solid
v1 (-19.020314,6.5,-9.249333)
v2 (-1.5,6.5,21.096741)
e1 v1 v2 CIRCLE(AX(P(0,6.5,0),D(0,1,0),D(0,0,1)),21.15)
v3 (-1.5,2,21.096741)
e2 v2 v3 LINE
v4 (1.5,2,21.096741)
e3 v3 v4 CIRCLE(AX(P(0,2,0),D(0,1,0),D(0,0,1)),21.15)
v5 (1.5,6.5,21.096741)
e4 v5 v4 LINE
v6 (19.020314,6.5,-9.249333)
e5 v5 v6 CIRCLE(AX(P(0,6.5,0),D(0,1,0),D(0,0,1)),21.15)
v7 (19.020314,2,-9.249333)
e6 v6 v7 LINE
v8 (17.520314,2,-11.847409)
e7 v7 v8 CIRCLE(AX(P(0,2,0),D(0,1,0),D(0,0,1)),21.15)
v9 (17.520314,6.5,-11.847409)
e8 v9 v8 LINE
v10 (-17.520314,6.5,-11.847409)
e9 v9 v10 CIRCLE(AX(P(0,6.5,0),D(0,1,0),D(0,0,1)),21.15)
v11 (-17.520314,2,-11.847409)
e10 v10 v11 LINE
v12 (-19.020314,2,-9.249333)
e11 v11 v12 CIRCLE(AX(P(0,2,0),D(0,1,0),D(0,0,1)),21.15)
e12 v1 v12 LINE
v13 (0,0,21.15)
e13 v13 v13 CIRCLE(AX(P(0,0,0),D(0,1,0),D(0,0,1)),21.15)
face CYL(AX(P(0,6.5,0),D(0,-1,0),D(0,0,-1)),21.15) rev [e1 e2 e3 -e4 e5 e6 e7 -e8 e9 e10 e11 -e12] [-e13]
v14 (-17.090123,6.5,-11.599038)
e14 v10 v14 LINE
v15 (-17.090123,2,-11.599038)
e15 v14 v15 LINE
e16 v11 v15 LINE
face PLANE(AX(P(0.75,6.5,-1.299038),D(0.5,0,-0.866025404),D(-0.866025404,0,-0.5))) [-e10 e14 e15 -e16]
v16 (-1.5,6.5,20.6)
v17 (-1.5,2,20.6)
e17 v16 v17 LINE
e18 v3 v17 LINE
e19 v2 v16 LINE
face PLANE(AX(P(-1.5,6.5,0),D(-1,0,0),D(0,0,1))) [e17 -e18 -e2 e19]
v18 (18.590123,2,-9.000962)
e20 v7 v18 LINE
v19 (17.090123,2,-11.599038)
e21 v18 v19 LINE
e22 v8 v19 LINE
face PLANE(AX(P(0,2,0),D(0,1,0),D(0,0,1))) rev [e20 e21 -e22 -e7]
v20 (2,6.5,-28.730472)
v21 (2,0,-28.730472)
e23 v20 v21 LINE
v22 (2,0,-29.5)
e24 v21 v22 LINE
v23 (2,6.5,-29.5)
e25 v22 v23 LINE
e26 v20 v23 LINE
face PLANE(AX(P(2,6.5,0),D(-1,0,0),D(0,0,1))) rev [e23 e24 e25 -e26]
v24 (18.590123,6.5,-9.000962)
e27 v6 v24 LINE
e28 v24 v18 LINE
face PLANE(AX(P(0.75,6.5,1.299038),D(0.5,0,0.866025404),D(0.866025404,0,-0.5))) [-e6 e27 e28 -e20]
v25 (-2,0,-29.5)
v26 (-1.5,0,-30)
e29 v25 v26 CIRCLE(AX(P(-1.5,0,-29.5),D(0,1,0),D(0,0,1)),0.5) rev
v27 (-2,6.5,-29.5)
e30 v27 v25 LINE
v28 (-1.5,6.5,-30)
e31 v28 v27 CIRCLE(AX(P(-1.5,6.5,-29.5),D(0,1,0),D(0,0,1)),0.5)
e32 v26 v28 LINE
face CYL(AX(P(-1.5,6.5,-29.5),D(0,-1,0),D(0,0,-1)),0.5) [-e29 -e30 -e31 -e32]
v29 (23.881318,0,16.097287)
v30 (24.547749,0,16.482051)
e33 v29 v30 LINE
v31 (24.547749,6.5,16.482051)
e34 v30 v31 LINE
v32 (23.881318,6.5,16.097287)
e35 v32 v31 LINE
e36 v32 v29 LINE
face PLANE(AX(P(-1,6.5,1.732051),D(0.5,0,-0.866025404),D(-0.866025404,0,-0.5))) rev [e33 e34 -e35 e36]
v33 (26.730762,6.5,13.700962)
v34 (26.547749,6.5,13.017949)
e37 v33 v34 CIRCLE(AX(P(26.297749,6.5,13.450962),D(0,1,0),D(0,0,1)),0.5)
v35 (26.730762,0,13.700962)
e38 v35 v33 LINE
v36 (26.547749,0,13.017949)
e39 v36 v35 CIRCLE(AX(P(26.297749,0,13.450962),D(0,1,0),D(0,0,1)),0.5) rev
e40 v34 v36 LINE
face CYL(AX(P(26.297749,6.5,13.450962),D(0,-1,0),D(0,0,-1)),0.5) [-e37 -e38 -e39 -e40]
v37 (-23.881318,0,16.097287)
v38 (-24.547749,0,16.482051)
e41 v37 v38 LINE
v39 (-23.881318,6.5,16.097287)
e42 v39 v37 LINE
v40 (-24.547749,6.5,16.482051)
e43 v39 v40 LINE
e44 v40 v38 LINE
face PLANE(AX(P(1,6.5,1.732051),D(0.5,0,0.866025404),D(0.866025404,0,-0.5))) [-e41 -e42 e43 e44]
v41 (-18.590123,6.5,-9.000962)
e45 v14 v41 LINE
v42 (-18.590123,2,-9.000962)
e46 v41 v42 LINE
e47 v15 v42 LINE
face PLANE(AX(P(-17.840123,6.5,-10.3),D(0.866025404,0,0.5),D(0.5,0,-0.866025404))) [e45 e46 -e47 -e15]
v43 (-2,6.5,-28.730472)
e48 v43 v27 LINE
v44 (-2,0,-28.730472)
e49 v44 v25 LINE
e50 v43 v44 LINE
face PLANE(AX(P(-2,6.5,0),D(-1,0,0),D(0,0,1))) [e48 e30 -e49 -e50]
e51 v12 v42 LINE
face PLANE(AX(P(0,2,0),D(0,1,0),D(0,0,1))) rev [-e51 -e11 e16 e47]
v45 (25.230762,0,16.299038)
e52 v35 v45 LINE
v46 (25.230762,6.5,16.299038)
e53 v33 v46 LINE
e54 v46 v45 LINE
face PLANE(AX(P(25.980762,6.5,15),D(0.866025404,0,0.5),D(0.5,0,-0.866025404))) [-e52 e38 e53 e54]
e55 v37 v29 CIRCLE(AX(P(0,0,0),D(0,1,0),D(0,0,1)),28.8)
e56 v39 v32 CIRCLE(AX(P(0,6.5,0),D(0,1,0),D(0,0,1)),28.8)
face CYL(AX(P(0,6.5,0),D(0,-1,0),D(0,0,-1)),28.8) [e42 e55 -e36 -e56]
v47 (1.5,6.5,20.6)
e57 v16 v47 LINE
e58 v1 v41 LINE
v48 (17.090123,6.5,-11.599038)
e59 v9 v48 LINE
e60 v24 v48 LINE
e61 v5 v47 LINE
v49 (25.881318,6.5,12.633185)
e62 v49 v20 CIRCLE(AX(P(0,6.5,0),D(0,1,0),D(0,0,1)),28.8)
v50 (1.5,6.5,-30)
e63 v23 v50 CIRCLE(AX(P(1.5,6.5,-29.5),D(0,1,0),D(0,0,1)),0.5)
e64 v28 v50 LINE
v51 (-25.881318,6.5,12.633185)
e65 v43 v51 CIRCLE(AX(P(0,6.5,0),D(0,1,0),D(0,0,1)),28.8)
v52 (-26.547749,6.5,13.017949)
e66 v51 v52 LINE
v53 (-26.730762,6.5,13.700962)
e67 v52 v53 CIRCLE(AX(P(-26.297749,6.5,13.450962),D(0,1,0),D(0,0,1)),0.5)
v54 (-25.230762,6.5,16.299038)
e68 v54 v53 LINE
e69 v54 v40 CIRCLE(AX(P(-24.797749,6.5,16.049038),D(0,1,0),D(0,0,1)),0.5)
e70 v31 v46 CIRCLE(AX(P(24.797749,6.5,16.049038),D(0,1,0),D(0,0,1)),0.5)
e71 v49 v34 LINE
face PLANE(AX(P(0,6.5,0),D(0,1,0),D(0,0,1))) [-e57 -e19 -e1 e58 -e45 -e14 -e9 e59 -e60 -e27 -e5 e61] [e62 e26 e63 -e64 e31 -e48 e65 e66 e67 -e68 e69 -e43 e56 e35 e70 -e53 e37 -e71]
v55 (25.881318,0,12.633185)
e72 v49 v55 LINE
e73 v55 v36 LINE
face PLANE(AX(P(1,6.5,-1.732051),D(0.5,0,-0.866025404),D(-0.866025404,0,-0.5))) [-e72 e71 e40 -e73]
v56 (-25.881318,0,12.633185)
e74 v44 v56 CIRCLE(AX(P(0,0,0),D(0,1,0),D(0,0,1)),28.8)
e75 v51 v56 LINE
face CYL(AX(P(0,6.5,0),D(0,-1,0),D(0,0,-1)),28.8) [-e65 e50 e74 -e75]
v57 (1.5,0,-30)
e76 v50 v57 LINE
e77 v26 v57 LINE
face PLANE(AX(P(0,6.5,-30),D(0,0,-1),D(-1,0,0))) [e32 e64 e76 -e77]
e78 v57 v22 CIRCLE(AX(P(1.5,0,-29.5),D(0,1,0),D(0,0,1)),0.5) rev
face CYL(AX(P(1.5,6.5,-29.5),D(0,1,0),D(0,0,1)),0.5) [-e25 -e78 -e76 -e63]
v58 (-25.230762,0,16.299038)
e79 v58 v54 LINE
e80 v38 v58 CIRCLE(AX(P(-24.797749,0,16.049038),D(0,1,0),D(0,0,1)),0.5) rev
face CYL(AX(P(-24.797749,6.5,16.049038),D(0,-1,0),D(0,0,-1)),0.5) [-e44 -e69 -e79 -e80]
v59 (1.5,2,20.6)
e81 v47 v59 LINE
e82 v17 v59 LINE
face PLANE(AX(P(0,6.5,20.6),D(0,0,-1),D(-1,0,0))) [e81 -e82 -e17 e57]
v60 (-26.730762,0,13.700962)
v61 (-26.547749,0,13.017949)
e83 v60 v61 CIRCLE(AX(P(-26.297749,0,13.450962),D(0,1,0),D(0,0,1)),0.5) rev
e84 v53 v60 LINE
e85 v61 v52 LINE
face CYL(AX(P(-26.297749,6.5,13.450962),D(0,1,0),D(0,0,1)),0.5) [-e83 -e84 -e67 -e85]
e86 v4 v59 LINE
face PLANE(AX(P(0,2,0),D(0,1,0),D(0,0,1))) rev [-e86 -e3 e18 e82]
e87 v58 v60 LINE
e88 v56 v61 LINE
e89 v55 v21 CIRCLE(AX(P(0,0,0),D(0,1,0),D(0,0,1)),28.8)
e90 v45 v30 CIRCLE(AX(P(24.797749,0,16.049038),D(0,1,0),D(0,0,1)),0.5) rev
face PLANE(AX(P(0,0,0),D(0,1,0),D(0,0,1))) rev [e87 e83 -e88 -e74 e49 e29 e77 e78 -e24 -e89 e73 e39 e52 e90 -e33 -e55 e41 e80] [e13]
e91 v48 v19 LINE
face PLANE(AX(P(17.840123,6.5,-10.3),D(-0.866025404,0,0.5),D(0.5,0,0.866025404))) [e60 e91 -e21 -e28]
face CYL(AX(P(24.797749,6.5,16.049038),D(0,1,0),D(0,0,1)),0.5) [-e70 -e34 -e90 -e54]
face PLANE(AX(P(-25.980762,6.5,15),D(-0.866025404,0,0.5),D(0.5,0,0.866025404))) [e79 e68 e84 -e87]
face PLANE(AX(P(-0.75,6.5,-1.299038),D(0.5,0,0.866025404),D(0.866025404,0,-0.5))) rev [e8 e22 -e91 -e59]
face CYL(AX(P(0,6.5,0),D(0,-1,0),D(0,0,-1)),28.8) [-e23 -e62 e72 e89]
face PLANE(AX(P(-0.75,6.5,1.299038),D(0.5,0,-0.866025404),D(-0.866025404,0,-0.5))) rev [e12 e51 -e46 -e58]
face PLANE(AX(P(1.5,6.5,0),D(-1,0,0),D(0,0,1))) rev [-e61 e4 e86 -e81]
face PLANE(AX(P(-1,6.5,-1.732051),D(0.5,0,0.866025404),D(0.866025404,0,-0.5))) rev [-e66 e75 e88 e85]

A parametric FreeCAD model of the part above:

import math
import FreeCAD as App
import Part
import Sketcher

V = App.Vector
Q = App.Units.Quantity


def edges_at(feature, points):
    """Names of the edges that pass closest to the given points."""
    edges = feature.Shape.Edges
    near = lambda p: min(range(len(edges)), key=lambda i: edges[i].distToShape(Part.Vertex(*p))[0])
    return sorted({f"Edge{near(p) + 1}" for p in points})

doc = App.newDocument("Part")
body = doc.addObject("PartDesign::Body", "Body")

# Sketch on XZ plane
sketch1 = body.newObject("Sketcher::SketchObject", "Sketch")
sketch1.AttachmentSupport = (doc.getObject("XZ_Plane"), [""])
sketch1.MapMode = "FlatFace"
sketch1.addGeometry(Part.ArcOfCircle(Part.Circle(V(0, 0, 0), V(0, 0, 1), 28.8), math.radians(-86.017921), math.radians(26.017921)), False)
sketch1.addGeometry(Part.LineSegment(V(2, -28.730472, 0), V(2, -30, 0)), False)
sketch1.addGeometry(Part.LineSegment(V(2, -30, 0), V(-2, -30, 0)), False)
sketch1.addGeometry(Part.LineSegment(V(-2, -30, 0), V(-2, -28.730472, 0)), False)
sketch1.addGeometry(Part.ArcOfCircle(Part.Circle(V(0, 0, 0), V(0, 0, 1), 28.8), math.radians(153.982079), math.radians(266.017921)), False)
sketch1.addGeometry(Part.LineSegment(V(-25.881318, 12.633185, 0), V(-26.980762, 13.267949, 0)), False)
sketch1.addGeometry(Part.LineSegment(V(-26.980762, 13.267949, 0), V(-24.980762, 16.732051, 0)), False)
sketch1.addGeometry(Part.LineSegment(V(-24.980762, 16.732051, 0), V(-23.881318, 16.097287, 0)), False)
sketch1.addGeometry(Part.ArcOfCircle(Part.Circle(V(0, 0, 0), V(0, 0, 1), 28.8), math.radians(33.982079), math.radians(146.017921)), False)
sketch1.addGeometry(Part.LineSegment(V(23.881318, 16.097287, 0), V(24.980762, 16.732051, 0)), False)
sketch1.addGeometry(Part.LineSegment(V(24.980762, 16.732051, 0), V(26.980762, 13.267949, 0)), False)
sketch1.addGeometry(Part.LineSegment(V(26.980762, 13.267949, 0), V(25.881318, 12.633185, 0)), False)
sketch1.addGeometry(Part.LineSegment(V(-1.5, 20.6, 0), V(-1.5, 21.096741, 0)), False)
sketch1.addGeometry(Part.ArcOfCircle(Part.Circle(V(0, 0, 0), V(0, 0, 1), 21.15), math.radians(94.066945), math.radians(205.933055)), False)
sketch1.addGeometry(Part.LineSegment(V(-19.020314, -9.249333, 0), V(-18.590123, -9.000962, 0)), False)
sketch1.addGeometry(Part.LineSegment(V(-18.590123, -9.000962, 0), V(-17.090123, -11.599038, 0)), False)
sketch1.addGeometry(Part.LineSegment(V(-17.090123, -11.599038, 0), V(-17.520314, -11.847409, 0)), False)
sketch1.addGeometry(Part.ArcOfCircle(Part.Circle(V(0, 0, 0), V(0, 0, 1), 21.15), math.radians(-145.933055), math.radians(-34.066945)), False)
sketch1.addGeometry(Part.LineSegment(V(17.520314, -11.847409, 0), V(17.090123, -11.599038, 0)), False)
sketch1.addGeometry(Part.LineSegment(V(17.090123, -11.599038, 0), V(18.590123, -9.000962, 0)), False)
sketch1.addGeometry(Part.LineSegment(V(18.590123, -9.000962, 0), V(19.020314, -9.249333, 0)), False)
sketch1.addGeometry(Part.ArcOfCircle(Part.Circle(V(0, 0, 0), V(0, 0, 1), 21.15), math.radians(-25.933055), math.radians(85.933055)), False)
sketch1.addGeometry(Part.LineSegment(V(1.5, 21.096741, 0), V(1.5, 20.6, 0)), False)
sketch1.addGeometry(Part.LineSegment(V(1.5, 20.6, 0), V(-1.5, 20.6, 0)), False)
sketch1.addConstraint(Sketcher.Constraint("Coincident", 0, 1, 1, 1))
sketch1.addConstraint(Sketcher.Constraint("Coincident", 1, 2, 2, 1))
sketch1.addConstraint(Sketcher.Constraint("Coincident", 2, 2, 3, 1))
sketch1.addConstraint(Sketcher.Constraint("Coincident", 3, 2, 4, 2))
sketch1.addConstraint(Sketcher.Constraint("Coincident", 4, 1, 5, 1))
sketch1.addConstraint(Sketcher.Constraint("Coincident", 5, 2, 6, 1))
sketch1.addConstraint(Sketcher.Constraint("Coincident", 6, 2, 7, 1))
sketch1.addConstraint(Sketcher.Constraint("Coincident", 7, 2, 8, 2))
sketch1.addConstraint(Sketcher.Constraint("Coincident", 8, 1, 9, 1))
sketch1.addConstraint(Sketcher.Constraint("Coincident", 9, 2, 10, 1))
sketch1.addConstraint(Sketcher.Constraint("Coincident", 10, 2, 11, 1))
sketch1.addConstraint(Sketcher.Constraint("Coincident", 11, 2, 0, 2))
sketch1.addConstraint(Sketcher.Constraint("Coincident", 12, 2, 13, 1))
sketch1.addConstraint(Sketcher.Constraint("Coincident", 13, 2, 14, 1))
sketch1.addConstraint(Sketcher.Constraint("Coincident", 14, 2, 15, 1))
sketch1.addConstraint(Sketcher.Constraint("Coincident", 15, 2, 16, 1))
sketch1.addConstraint(Sketcher.Constraint("Coincident", 16, 2, 17, 1))
sketch1.addConstraint(Sketcher.Constraint("Coincident", 17, 2, 18, 1))
sketch1.addConstraint(Sketcher.Constraint("Coincident", 18, 2, 19, 1))
sketch1.addConstraint(Sketcher.Constraint("Coincident", 19, 2, 20, 1))
sketch1.addConstraint(Sketcher.Constraint("Coincident", 20, 2, 21, 1))
sketch1.addConstraint(Sketcher.Constraint("Coincident", 21, 2, 22, 1))
sketch1.addConstraint(Sketcher.Constraint("Coincident", 22, 2, 23, 1))
sketch1.addConstraint(Sketcher.Constraint("Coincident", 23, 2, 12, 1))
sketch1.addConstraint(Sketcher.Constraint("Vertical", 1))
sketch1.addConstraint(Sketcher.Constraint("Horizontal", 2))
sketch1.addConstraint(Sketcher.Constraint("Vertical", 3))
sketch1.addConstraint(Sketcher.Constraint("Vertical", 12))
sketch1.addConstraint(Sketcher.Constraint("Vertical", 22))
sketch1.addConstraint(Sketcher.Constraint("Horizontal", 23))
sketch1.addConstraint(Sketcher.Constraint("Coincident", 0, 3, -1, 1))
sketch1.addConstraint(Sketcher.Constraint("Coincident", 4, 3, -1, 1))
sketch1.addConstraint(Sketcher.Constraint("Coincident", 8, 3, -1, 1))
sketch1.addConstraint(Sketcher.Constraint("Coincident", 13, 3, -1, 1))
sketch1.addConstraint(Sketcher.Constraint("Coincident", 17, 3, -1, 1))
sketch1.addConstraint(Sketcher.Constraint("Coincident", 21, 3, -1, 1))
sketch1.addConstraint(Sketcher.Constraint("Equal", 0, 4))
sketch1.addConstraint(Sketcher.Constraint("Equal", 4, 8))
sketch1.addConstraint(Sketcher.Constraint("Equal", 13, 17))
sketch1.addConstraint(Sketcher.Constraint("Equal", 17, 21))
sketch1.addConstraint(Sketcher.Constraint("Symmetric", 6, 2, 9, 2, -2))
sketch1.addConstraint(Sketcher.Constraint("Symmetric", 5, 2, 10, 2, -2))
sketch1.addConstraint(Sketcher.Constraint("Symmetric", 15, 2, 18, 2, -2))
sketch1.addConstraint(Sketcher.Constraint("Symmetric", 14, 2, 19, 2, -2))
sketch1.addConstraint(Sketcher.Constraint("Perpendicular", 5, 6))
sketch1.addConstraint(Sketcher.Constraint("Perpendicular", 6, 7))
sketch1.addConstraint(Sketcher.Constraint("Perpendicular", 9, 10))
sketch1.addConstraint(Sketcher.Constraint("Perpendicular", 10, 11))
sketch1.addConstraint(Sketcher.Constraint("Parallel", 11, 14))
sketch1.addConstraint(Sketcher.Constraint("Perpendicular", 14, 15))
sketch1.addConstraint(Sketcher.Constraint("Perpendicular", 15, 16))
sketch1.addConstraint(Sketcher.Constraint("Parallel", 7, 18))
sketch1.addConstraint(Sketcher.Constraint("Perpendicular", 19, 20))
sketch1.addConstraint(Sketcher.Constraint("Horizontal", 0, 1, 3, 2))
sketch1.addConstraint(Sketcher.Constraint("Horizontal", 12, 2, 21, 2))
sketch1.addConstraint(Sketcher.Constraint("Equal", 5, 7))
sketch1.addConstraint(Sketcher.Constraint("Equal", 14, 16))
sketch1.addConstraint(Sketcher.Constraint("Radius", 0, Q("28.8 mm")))
sketch1.addConstraint(Sketcher.Constraint("DistanceX", 2, 2, 2, 1, Q("4 mm")))
sketch1.addConstraint(Sketcher.Constraint("DistanceX", 23, 2, 23, 1, Q("3 mm")))
sketch1.addConstraint(Sketcher.Constraint("Angle", 5, Q("150 deg")))
sketch1.addConstraint(Sketcher.Constraint("Radius", 13, Q("21.15 mm")))
sketch1.addConstraint(Sketcher.Constraint("Distance", 6, Q("4 mm")))
sketch1.addConstraint(Sketcher.Constraint("Distance", 15, Q("3 mm")))
sketch1.addConstraint(Sketcher.Constraint("DistanceY", 1, 2, -1, 1, Q("30 mm")))
sketch1.addConstraint(Sketcher.Constraint("DistanceY", -1, 1, 22, 2, Q("20.6 mm")))
sketch1.addConstraint(Sketcher.Constraint("Distance", 5, Q("1.269528 mm")))
sketch1.addConstraint(Sketcher.Constraint("Distance", 14, Q("0.496741 mm")))
pad1 = body.newObject("PartDesign::Pad", "Pad")
pad1.Profile = sketch1
pad1.Length = 6.5
pad1.Reversed = True
doc.recompute()

fillet = body.newObject("PartDesign::Fillet", "Fillet")
fillet.Base = (pad1, edges_at(pad1, [
    (-24.981, 3.25, 16.732),
    (-26.981, 3.25, 13.268),
    (-2, 3.25, -30),
    (2, 3.25, -30),
    (26.981, 3.25, 13.268),
    (24.981, 3.25, 16.732),
]))
fillet.Radius = 0.5

# Sketch on XZ plane
sketch2 = body.newObject("Sketcher::SketchObject", "Sketch001")
sketch2.AttachmentSupport = (doc.getObject("XZ_Plane"), [""])
sketch2.MapMode = "FlatFace"
sketch2.addGeometry(Part.LineSegment(V(-1.5, 20.6, 0), V(-1.5, 21.096741, 0)), False)
sketch2.addGeometry(Part.ArcOfCircle(Part.Circle(V(0, 0, 0), V(0, 0, 1), 21.15), math.radians(85.933055), math.radians(94.066945)), False)
sketch2.addGeometry(Part.LineSegment(V(1.5, 21.096741, 0), V(1.5, 20.6, 0)), False)
sketch2.addGeometry(Part.LineSegment(V(1.5, 20.6, 0), V(-1.5, 20.6, 0)), False)
sketch2.addGeometry(Part.ArcOfCircle(Part.Circle(V(0, 0, 0), V(0, 0, 1), 21.15), math.radians(-154.066945), math.radians(-145.933055)), False)
sketch2.addGeometry(Part.LineSegment(V(-19.020314, -9.249333, 0), V(-18.590123, -9.000962, 0)), False)
sketch2.addGeometry(Part.LineSegment(V(-18.590123, -9.000962, 0), V(-17.090123, -11.599038, 0)), False)
sketch2.addGeometry(Part.LineSegment(V(-17.090123, -11.599038, 0), V(-17.520314, -11.847409, 0)), False)
sketch2.addGeometry(Part.LineSegment(V(18.590123, -9.000962, 0), V(19.020314, -9.249333, 0)), False)
sketch2.addGeometry(Part.ArcOfCircle(Part.Circle(V(0, 0, 0), V(0, 0, 1), 21.15), math.radians(-34.066945), math.radians(-25.933055)), False)
sketch2.addGeometry(Part.LineSegment(V(17.520314, -11.847409, 0), V(17.090123, -11.599038, 0)), False)
sketch2.addGeometry(Part.LineSegment(V(17.090123, -11.599038, 0), V(18.590123, -9.000962, 0)), False)
sketch2.addConstraint(Sketcher.Constraint("Coincident", 0, 2, 1, 2))
sketch2.addConstraint(Sketcher.Constraint("Coincident", 1, 1, 2, 1))
sketch2.addConstraint(Sketcher.Constraint("Coincident", 2, 2, 3, 1))
sketch2.addConstraint(Sketcher.Constraint("Coincident", 3, 2, 0, 1))
sketch2.addConstraint(Sketcher.Constraint("Coincident", 4, 1, 5, 1))
sketch2.addConstraint(Sketcher.Constraint("Coincident", 5, 2, 6, 1))
sketch2.addConstraint(Sketcher.Constraint("Coincident", 6, 2, 7, 1))
sketch2.addConstraint(Sketcher.Constraint("Coincident", 7, 2, 4, 2))
sketch2.addConstraint(Sketcher.Constraint("Coincident", 8, 2, 9, 2))
sketch2.addConstraint(Sketcher.Constraint("Coincident", 9, 1, 10, 1))
sketch2.addConstraint(Sketcher.Constraint("Coincident", 10, 2, 11, 1))
sketch2.addConstraint(Sketcher.Constraint("Coincident", 11, 2, 8, 1))
sketch2.addConstraint(Sketcher.Constraint("Vertical", 0))
sketch2.addConstraint(Sketcher.Constraint("Vertical", 2))
sketch2.addConstraint(Sketcher.Constraint("Horizontal", 3))
sketch2.addConstraint(Sketcher.Constraint("Coincident", 1, 3, -1, 1))
sketch2.addConstraint(Sketcher.Constraint("Coincident", 4, 3, -1, 1))
sketch2.addConstraint(Sketcher.Constraint("Coincident", 9, 3, -1, 1))
sketch2.addConstraint(Sketcher.Constraint("Equal", 1, 4))
sketch2.addConstraint(Sketcher.Constraint("Equal", 4, 9))
sketch2.addConstraint(Sketcher.Constraint("Symmetric", 6, 2, 10, 2, -2))
sketch2.addConstraint(Sketcher.Constraint("Symmetric", 5, 2, 11, 2, -2))
sketch2.addConstraint(Sketcher.Constraint("Perpendicular", 5, 6))
sketch2.addConstraint(Sketcher.Constraint("Perpendicular", 6, 7))
sketch2.addConstraint(Sketcher.Constraint("Parallel", 8, 10))
sketch2.addConstraint(Sketcher.Constraint("Perpendicular", 10, 11))
sketch2.addConstraint(Sketcher.Constraint("Horizontal", 0, 2, 1, 1))
sketch2.addConstraint(Sketcher.Constraint("Equal", 5, 7))
sketch2.addConstraint(Sketcher.Constraint("DistanceX", 3, 2, 3, 1, Q("3 mm")))
sketch2.addConstraint(Sketcher.Constraint("Angle", 5, Q("30 deg")))
sketch2.addConstraint(Sketcher.Constraint("Radius", 1, Q("21.15 mm")))
sketch2.addConstraint(Sketcher.Constraint("Distance", 6, Q("3 mm")))
sketch2.addConstraint(Sketcher.Constraint("DistanceY", -1, 1, 2, 2, Q("20.6 mm")))
sketch2.addConstraint(Sketcher.Constraint("Distance", 5, Q("0.496741 mm")))
pocket1 = body.newObject("PartDesign::Pocket", "Pocket")
pocket1.Profile = sketch2
pocket1.Length = 2

doc.recompute()
